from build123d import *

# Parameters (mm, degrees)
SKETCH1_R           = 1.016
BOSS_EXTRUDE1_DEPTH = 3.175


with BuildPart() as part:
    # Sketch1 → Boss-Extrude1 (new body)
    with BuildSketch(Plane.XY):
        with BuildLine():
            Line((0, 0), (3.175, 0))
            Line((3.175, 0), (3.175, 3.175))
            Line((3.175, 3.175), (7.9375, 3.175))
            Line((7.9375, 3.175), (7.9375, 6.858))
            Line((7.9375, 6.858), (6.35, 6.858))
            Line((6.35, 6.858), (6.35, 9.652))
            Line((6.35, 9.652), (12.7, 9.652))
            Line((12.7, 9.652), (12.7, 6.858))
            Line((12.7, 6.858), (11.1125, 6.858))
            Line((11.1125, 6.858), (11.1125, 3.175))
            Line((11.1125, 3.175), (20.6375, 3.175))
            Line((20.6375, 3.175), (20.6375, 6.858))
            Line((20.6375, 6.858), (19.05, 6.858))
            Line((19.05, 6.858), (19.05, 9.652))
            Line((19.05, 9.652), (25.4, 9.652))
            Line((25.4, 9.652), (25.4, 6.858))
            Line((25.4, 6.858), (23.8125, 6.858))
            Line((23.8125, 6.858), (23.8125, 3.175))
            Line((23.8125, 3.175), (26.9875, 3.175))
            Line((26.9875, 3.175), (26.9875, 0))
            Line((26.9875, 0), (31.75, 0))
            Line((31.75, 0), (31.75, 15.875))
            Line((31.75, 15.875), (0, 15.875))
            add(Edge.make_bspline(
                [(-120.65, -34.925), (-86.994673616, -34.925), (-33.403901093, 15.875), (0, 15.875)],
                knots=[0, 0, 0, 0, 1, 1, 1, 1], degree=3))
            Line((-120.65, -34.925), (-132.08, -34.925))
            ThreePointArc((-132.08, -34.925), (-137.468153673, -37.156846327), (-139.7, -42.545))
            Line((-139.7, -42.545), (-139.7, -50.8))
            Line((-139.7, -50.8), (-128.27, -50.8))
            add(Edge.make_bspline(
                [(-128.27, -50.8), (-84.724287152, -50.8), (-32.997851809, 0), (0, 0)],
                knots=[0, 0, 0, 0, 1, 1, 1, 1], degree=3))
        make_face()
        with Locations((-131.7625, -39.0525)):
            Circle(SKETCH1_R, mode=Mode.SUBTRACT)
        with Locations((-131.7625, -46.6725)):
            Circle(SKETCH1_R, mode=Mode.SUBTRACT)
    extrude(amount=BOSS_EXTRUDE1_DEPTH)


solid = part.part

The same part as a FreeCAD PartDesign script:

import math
import FreeCAD as App
import Part
import Sketcher

V = App.Vector
Q = App.Units.Quantity

doc = App.newDocument("Part")
body = doc.addObject("PartDesign::Body", "Body")

# Sketch on XY plane
sketch1 = doc.addObject("Sketcher::SketchObject", "Sketch")
body.addObject(sketch1)
sketch1.AttachmentSupport = (doc.XY_Plane, [""])
sketch1.MapMode = "FlatFace"
sketch1.addGeometry([
    Part.LineSegment(V(0, 0, 0), V(3.175, 0, 0)),  # 0
    Part.LineSegment(V(3.175, 0, 0), V(3.175, 3.175, 0)),  # 1
    Part.LineSegment(V(3.175, 3.175, 0), V(7.9375, 3.175, 0)),  # 2
    Part.LineSegment(V(7.9375, 3.175, 0), V(7.9375, 6.858, 0)),  # 3
    Part.LineSegment(V(7.9375, 6.858, 0), V(6.35, 6.858, 0)),  # 4
    Part.LineSegment(V(6.35, 6.858, 0), V(6.35, 9.652, 0)),  # 5
    Part.LineSegment(V(6.35, 9.652, 0), V(12.7, 9.652, 0)),  # 6
    Part.LineSegment(V(12.7, 9.652, 0), V(12.7, 6.858, 0)),  # 7
    Part.LineSegment(V(12.7, 6.858, 0), V(11.1125, 6.858, 0)),  # 8
    Part.LineSegment(V(11.1125, 6.858, 0), V(11.1125, 3.175, 0)),  # 9
    Part.LineSegment(V(11.1125, 3.175, 0), V(20.6375, 3.175, 0)),  # 10
    Part.LineSegment(V(20.6375, 3.175, 0), V(20.6375, 6.858, 0)),  # 11
    Part.LineSegment(V(20.6375, 6.858, 0), V(19.05, 6.858, 0)),  # 12
    Part.LineSegment(V(19.05, 6.858, 0), V(19.05, 9.652, 0)),  # 13
    Part.LineSegment(V(19.05, 9.652, 0), V(25.4, 9.652, 0)),  # 14
    Part.LineSegment(V(25.4, 9.652, 0), V(25.4, 6.858, 0)),  # 15
    Part.LineSegment(V(25.4, 6.858, 0), V(23.8125, 6.858, 0)),  # 16
    Part.LineSegment(V(23.8125, 6.858, 0), V(23.8125, 3.175, 0)),  # 17
    Part.LineSegment(V(23.8125, 3.175, 0), V(26.9875, 3.175, 0)),  # 18
    Part.LineSegment(V(26.9875, 3.175, 0), V(26.9875, 0, 0)),  # 19
    Part.LineSegment(V(26.9875, 0, 0), V(31.75, 0, 0)),  # 20
    Part.LineSegment(V(31.75, 0, 0), V(31.75, 15.875, 0)),  # 21
    Part.LineSegment(V(31.75, 15.875, 0), V(0, 15.875, 0)),  # 22
    Part.BSplineCurve([V(-120.65, -34.925, 0), V(-86.994674, -34.925, 0), V(-33.403901, 15.875, 0), V(0, 15.875, 0)], [4, 4], [0, 1], False, 3, [1, 1, 1, 1], False),  # 23
    Part.LineSegment(V(-120.65, -34.925, 0), V(-132.08, -34.925, 0)),  # 24
    Part.ArcOfCircle(Part.Circle(V(-132.08, -42.545, 0), V(0, 0, 1), 7.62), math.radians(90), math.radians(180)),  # 25
    Part.LineSegment(V(-139.7, -42.545, 0), V(-139.7, -50.8, 0)),  # 26
    Part.LineSegment(V(-139.7, -50.8, 0), V(-128.27, -50.8, 0)),  # 27
    Part.BSplineCurve([V(-128.27, -50.8, 0), V(-84.724287, -50.8, 0), V(-32.997852, 0, 0), V(0, 0, 0)], [4, 4], [0, 1], False, 3, [1, 1, 1, 1], False),  # 28
    Part.Circle(V(-131.7625, -46.6725, 0), V(0, 0, 1), 1.016),  # 29
    Part.Circle(V(-131.7625, -39.0525, 0), V(0, 0, 1), 1.016),  # 30
], False)
sketch1.addConstraint([
    Sketcher.Constraint("Block", 23),
    Sketcher.Constraint("Block", 28),
    Sketcher.Constraint("Coincident", 0, 2, 1, 1),
    Sketcher.Constraint("Coincident", 1, 2, 2, 1),
    Sketcher.Constraint("Coincident", 2, 2, 3, 1),
    Sketcher.Constraint("Coincident", 3, 2, 4, 1),
    Sketcher.Constraint("Coincident", 4, 2, 5, 1),
    Sketcher.Constraint("Coincident", 5, 2, 6, 1),
    Sketcher.Constraint("Coincident", 6, 2, 7, 1),
    Sketcher.Constraint("Coincident", 7, 2, 8, 1),
    Sketcher.Constraint("Coincident", 8, 2, 9, 1),
    Sketcher.Constraint("Coincident", 9, 2, 10, 1),
    Sketcher.Constraint("Coincident", 10, 2, 11, 1),
    Sketcher.Constraint("Coincident", 11, 2, 12, 1),
    Sketcher.Constraint("Coincident", 12, 2, 13, 1),
    Sketcher.Constraint("Coincident", 13, 2, 14, 1),
    Sketcher.Constraint("Coincident", 14, 2, 15, 1),
    Sketcher.Constraint("Coincident", 15, 2, 16, 1),
    Sketcher.Constraint("Coincident", 16, 2, 17, 1),
    Sketcher.Constraint("Coincident", 17, 2, 18, 1),
    Sketcher.Constraint("Coincident", 18, 2, 19, 1),
    Sketcher.Constraint("Coincident", 19, 2, 20, 1),
    Sketcher.Constraint("Coincident", 20, 2, 21, 1),
    Sketcher.Constraint("Coincident", 21, 2, 22, 1),
    Sketcher.Constraint("Coincident", 22, 2, 23, 2),
    Sketcher.Constraint("Coincident", 23, 1, 24, 1),
    Sketcher.Constraint("Coincident", 24, 2, 25, 1),
    Sketcher.Constraint("Coincident", 25, 2, 26, 1),
    Sketcher.Constraint("Coincident", 26, 2, 27, 1),
    Sketcher.Constraint("Coincident", 27, 2, 28, 1),
    Sketcher.Constraint("Coincident", 28, 2, 0, 1),
    Sketcher.Constraint("Horizontal", 0),
    Sketcher.Constraint("Vertical", 1),
    Sketcher.Constraint("Horizontal", 2),
    Sketcher.Constraint("Vertical", 3),
    Sketcher.Constraint("Horizontal", 4),
    Sketcher.Constraint("Vertical", 5),
    Sketcher.Constraint("Horizontal", 6),
    Sketcher.Constraint("Vertical", 7),
    Sketcher.Constraint("Horizontal", 8),
    Sketcher.Constraint("Vertical", 9),
    Sketcher.Constraint("Horizontal", 10),
    Sketcher.Constraint("Vertical", 11),
    Sketcher.Constraint("Horizontal", 12),
    Sketcher.Constraint("Vertical", 13),
    Sketcher.Constraint("Horizontal", 14),
    Sketcher.Constraint("Vertical", 15),
    Sketcher.Constraint("Horizontal", 16),
    Sketcher.Constraint("Vertical", 17),
    Sketcher.Constraint("Horizontal", 18),
    Sketcher.Constraint("Vertical", 19),
    Sketcher.Constraint("Horizontal", 20),
    Sketcher.Constraint("Vertical", 21),
    Sketcher.Constraint("Horizontal", 22),
    Sketcher.Constraint("Horizontal", 24),
    Sketcher.Constraint("Vertical", 26),
    Sketcher.Constraint("Horizontal", 27),
    Sketcher.Constraint("PointOnObject", 19, 2, -1),
    Sketcher.Constraint("Radius", 25, Q("0.3 in")),
    Sketcher.Constraint("Diameter", 29, Q("0.08 in")),
    Sketcher.Constraint("Diameter", 30, Q("0.08 in")),
    Sketcher.Constraint("DistanceX", -1, 1, 14, 2, Q("1 in")),
    Sketcher.Constraint("DistanceX", 6, 1, 6, 2, Q("0.25 in")),
    Sketcher.Constraint("DistanceX", 14, 1, 14, 2, Q("0.25 in")),
    Sketcher.Constraint("DistanceX", 22, 2, 22, 1, Q("1.25 in")),
    Sketcher.Constraint("DistanceX", 24, 2, 24, 1, Q("0.45 in")),
    Sketcher.Constraint("DistanceX", 27, 1, 27, 2, Q("0.45 in")),
    Sketcher.Constraint("DistanceY", 5, 1, 5, 2, Q("0.11 in")),
    Sketcher.Constraint("DistanceY", 7, 2, 7, 1, Q("0.11 in")),
    Sketcher.Constraint("DistanceY", 13, 1, 13, 2, Q("0.11 in")),
    Sketcher.Constraint("DistanceY", 15, 2, 15, 1, Q("0.11 in")),
    Sketcher.Constraint("DistanceX", -1, 1, 6, 2, Q("0.5 in")),
    Sketcher.Constraint("DistanceY", 29, 3, 30, 3, Q("0.3 in")),
    Sketcher.Constraint("DistanceY", 25, 3, 1, 2, Q("1.8 in")),
    Sketcher.Constraint("DistanceX", 30, 3, 2, 2, Q("5.5 in")),
    Sketcher.Constraint("DistanceX", 29, 3, 2, 2, Q("5.5 in")),
    Sketcher.Constraint("DistanceX", 2, 2, 10, 2, Q("0.5 in")),
    Sketcher.Constraint("DistanceY", 18, 2, 21, 2, Q("0.5 in")),
    Sketcher.Constraint("DistanceY", 25, 2, 24, 2, Q("0.3 in")),
    Sketcher.Constraint("DistanceX", 0, 1, 0, 2, Q("0.125 in")),
    Sketcher.Constraint("DistanceX", 2, 1, 2, 2, Q("0.1875 in")),
    Sketcher.Constraint("DistanceX", 8, 2, 8, 1, Q("0.0625 in")),
    Sketcher.Constraint("DistanceX", 16, 2, 16, 1, Q("0.0625 in")),
    Sketcher.Constraint("DistanceX", 18, 1, 18, 2, Q("0.125 in")),
    Sketcher.Constraint("DistanceY", 3, 1, 3, 2, Q("0.145 in")),
    Sketcher.Constraint("DistanceY", 9, 2, 9, 1, Q("0.145 in")),
    Sketcher.Constraint("DistanceY", 11, 1, 11, 2, Q("0.145 in")),
    Sketcher.Constraint("DistanceY", 29, 3, -1, 1, Q("1.8375 in")),
])
pad1 = doc.addObject("PartDesign::Pad", "Pad")
body.addObject(pad1)
pad1.Profile = sketch1
pad1.Length = Q("0.125 in")

doc.recompute()
